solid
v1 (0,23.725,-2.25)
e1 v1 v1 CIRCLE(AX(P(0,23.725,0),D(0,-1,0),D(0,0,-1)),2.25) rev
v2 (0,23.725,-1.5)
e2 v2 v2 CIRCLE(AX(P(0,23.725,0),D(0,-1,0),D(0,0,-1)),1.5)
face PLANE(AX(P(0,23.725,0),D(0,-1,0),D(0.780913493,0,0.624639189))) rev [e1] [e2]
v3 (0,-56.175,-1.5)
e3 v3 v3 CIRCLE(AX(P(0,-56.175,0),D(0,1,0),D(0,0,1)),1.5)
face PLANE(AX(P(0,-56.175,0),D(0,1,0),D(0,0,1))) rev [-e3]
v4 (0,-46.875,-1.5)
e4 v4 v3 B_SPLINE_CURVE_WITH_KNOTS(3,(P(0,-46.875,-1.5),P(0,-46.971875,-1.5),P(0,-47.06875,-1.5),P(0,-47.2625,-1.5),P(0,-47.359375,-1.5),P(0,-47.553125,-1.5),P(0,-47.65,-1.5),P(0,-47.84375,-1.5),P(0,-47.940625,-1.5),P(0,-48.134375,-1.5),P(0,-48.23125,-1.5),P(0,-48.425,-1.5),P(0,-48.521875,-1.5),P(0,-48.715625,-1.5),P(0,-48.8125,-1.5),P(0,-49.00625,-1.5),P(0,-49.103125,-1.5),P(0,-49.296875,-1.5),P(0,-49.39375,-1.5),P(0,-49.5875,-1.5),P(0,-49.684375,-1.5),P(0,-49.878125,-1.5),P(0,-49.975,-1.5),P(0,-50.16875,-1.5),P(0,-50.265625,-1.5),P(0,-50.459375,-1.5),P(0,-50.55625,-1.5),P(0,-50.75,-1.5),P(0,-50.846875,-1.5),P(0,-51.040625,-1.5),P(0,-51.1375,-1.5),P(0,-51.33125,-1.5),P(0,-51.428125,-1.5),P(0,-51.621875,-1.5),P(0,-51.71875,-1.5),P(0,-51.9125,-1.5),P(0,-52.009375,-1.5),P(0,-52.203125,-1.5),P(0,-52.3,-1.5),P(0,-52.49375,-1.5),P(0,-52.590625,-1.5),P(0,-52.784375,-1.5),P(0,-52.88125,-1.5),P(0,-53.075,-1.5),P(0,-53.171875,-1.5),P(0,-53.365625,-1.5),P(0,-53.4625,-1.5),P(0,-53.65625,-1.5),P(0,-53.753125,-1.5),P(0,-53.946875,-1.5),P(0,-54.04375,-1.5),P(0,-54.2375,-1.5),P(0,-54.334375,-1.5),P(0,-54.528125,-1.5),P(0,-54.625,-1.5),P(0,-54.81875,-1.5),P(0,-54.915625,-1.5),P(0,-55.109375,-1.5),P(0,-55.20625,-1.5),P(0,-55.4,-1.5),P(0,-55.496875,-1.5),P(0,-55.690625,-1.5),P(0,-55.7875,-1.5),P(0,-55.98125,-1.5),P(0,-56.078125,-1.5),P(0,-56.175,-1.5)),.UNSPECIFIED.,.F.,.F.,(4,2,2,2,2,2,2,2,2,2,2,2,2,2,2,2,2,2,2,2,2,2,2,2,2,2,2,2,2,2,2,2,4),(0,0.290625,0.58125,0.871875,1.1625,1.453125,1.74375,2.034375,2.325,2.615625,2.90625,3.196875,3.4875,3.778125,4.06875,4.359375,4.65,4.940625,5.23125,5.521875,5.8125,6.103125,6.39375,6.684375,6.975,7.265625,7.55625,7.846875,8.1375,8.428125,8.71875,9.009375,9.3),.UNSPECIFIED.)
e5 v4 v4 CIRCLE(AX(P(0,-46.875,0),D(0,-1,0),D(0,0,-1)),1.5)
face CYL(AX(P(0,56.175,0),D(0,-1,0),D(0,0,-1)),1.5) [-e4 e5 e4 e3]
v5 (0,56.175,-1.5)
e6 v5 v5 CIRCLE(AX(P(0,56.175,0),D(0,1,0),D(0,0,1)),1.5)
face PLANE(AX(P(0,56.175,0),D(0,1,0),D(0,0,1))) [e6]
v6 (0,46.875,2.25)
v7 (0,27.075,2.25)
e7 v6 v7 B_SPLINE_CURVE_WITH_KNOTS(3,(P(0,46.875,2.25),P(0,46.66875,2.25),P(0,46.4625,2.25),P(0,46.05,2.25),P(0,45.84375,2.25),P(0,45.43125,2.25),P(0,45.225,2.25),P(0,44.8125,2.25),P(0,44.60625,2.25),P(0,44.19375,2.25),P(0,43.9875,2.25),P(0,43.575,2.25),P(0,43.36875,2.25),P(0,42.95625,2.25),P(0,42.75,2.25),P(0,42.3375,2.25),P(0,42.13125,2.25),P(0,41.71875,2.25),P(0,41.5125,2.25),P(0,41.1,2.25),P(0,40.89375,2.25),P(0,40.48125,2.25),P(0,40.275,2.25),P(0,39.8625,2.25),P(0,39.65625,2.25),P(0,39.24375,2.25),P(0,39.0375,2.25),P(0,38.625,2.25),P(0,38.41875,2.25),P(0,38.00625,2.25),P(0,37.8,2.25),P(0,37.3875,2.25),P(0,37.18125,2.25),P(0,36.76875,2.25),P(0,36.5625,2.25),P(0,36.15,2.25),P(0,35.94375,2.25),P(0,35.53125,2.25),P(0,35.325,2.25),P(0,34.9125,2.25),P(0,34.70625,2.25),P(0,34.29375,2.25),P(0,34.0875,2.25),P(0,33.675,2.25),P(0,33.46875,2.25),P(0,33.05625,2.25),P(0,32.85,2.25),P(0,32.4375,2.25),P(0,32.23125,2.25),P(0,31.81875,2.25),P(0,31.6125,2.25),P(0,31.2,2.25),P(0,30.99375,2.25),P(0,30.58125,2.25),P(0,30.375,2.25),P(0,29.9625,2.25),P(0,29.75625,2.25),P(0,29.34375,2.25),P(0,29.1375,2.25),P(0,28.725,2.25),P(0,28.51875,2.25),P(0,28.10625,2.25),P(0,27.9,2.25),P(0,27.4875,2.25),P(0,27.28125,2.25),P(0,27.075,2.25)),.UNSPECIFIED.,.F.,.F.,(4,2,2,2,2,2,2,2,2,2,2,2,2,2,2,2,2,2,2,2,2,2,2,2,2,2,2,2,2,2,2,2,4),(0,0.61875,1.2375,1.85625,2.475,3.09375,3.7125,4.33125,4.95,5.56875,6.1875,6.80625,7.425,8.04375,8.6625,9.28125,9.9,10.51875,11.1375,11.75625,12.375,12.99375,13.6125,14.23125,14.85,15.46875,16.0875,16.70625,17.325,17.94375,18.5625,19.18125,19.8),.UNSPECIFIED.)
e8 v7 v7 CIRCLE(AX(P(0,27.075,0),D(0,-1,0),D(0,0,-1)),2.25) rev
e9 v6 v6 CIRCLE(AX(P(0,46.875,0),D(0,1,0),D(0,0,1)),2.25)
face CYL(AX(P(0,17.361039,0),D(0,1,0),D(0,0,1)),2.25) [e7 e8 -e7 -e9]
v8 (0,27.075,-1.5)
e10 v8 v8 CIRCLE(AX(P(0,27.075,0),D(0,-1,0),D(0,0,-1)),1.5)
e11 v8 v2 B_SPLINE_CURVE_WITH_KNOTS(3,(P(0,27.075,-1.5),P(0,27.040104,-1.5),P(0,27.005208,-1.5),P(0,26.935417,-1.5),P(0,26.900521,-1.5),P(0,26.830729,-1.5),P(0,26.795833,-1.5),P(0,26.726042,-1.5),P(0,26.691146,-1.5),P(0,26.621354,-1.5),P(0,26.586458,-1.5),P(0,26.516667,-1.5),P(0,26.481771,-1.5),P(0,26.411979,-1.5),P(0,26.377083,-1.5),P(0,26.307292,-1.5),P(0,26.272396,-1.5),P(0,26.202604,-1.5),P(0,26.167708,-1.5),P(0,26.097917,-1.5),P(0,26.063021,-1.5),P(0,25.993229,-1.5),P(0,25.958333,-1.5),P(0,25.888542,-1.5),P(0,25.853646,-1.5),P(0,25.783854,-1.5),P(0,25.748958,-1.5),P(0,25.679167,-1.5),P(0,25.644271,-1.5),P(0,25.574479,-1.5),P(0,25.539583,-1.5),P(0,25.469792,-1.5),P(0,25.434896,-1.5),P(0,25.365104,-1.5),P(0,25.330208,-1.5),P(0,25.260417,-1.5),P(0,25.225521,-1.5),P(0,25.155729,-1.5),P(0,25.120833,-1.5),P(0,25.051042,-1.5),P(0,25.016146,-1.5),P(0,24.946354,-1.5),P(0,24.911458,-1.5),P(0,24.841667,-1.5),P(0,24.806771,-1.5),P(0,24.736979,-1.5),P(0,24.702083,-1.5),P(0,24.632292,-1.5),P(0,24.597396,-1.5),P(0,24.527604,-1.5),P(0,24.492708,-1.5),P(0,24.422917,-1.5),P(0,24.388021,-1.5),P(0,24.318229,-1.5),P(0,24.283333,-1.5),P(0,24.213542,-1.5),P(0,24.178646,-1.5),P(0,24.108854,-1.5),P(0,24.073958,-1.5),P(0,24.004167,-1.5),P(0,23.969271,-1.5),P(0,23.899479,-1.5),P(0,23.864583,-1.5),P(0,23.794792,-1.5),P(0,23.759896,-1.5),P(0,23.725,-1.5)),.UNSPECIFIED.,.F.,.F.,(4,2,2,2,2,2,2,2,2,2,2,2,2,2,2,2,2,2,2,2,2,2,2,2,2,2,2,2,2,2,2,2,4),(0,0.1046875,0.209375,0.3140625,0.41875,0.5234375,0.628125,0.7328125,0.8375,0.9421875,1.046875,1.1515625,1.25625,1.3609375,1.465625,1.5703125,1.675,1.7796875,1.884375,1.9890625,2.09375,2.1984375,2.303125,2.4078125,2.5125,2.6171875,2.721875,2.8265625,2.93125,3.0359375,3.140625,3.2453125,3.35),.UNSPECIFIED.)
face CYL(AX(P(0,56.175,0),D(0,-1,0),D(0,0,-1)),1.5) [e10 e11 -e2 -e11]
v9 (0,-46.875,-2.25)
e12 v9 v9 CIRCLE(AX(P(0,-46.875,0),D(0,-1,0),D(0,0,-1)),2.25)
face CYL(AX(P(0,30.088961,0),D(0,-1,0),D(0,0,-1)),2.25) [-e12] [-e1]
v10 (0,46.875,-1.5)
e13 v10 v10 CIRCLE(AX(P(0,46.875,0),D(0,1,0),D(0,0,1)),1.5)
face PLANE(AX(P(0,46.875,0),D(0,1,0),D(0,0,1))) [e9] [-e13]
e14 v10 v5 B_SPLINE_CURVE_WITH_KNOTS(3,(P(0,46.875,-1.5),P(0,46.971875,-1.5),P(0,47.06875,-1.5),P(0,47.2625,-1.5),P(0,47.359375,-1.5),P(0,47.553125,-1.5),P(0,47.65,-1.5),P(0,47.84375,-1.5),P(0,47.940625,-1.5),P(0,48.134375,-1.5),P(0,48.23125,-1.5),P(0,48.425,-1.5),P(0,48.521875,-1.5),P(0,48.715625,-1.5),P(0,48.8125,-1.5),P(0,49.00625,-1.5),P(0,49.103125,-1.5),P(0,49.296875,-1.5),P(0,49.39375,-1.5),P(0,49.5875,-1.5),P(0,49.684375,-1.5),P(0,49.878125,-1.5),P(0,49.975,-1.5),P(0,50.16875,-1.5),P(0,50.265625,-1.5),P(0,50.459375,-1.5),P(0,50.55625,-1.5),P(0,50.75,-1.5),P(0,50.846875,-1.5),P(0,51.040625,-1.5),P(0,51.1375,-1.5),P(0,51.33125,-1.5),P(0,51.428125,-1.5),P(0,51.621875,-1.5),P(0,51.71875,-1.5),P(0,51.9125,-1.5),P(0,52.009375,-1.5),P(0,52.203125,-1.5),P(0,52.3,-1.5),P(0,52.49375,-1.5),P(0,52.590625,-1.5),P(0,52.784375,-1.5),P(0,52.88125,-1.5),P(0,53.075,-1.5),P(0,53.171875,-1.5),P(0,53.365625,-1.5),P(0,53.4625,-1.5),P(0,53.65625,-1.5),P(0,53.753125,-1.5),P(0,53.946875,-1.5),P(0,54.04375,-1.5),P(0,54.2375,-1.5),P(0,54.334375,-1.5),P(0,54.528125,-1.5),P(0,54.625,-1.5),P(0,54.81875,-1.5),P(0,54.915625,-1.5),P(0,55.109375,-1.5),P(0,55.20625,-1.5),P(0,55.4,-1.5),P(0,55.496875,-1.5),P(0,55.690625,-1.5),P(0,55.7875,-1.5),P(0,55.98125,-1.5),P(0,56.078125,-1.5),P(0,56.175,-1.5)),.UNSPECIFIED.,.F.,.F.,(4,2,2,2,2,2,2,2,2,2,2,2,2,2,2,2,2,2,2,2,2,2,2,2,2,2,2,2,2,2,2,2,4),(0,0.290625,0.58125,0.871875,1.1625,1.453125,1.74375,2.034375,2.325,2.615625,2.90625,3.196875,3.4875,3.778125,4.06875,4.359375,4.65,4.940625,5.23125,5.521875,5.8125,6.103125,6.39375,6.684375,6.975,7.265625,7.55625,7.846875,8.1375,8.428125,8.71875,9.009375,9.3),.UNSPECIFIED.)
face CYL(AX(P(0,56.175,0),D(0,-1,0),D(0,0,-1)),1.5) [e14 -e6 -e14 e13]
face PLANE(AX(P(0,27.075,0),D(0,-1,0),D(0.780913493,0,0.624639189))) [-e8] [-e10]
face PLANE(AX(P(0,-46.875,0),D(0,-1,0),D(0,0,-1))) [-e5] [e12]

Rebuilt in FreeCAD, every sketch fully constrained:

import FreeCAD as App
import Part
import Sketcher
from FreeCAD import Vector
Q = App.Units.Quantity

doc = App.newDocument("Part")
body = doc.addObject("PartDesign::Body", "Body")

sketch1 = body.newObject("Sketcher::SketchObject", "Sketch")
sketch1.AttachmentSupport = (doc.getObject("XZ_Plane"), [""])
sketch1.MapMode = "FlatFace"
sketch1.addGeometry(Part.Circle(Vector(0, 0, 0), Vector(0, 0, 1), 1.5), False)
sketch1.addConstraint(Sketcher.Constraint("Coincident", 0, 3, -1, 1))
sketch1.addConstraint(Sketcher.Constraint("Diameter", 0, Q("3 mm")))
pad1 = body.newObject("PartDesign::Pad", "Pad")
pad1.Profile = sketch1
pad1.Length = 112.35
pad1.Midplane = True

sketch2 = body.newObject("Sketcher::SketchObject", "Sketch001")
sketch2.AttachmentSupport = (doc.getObject("XZ_Plane"), [""])
sketch2.MapMode = "FlatFace"
sketch2.AttachmentOffset = App.Placement(Vector(0, 0, 46.875), App.Rotation())
sketch2.addGeometry(Part.Circle(Vector(0, 0, 0), Vector(0, 0, 1), 2.25), False)
sketch2.addConstraint(Sketcher.Constraint("Coincident", 0, 3, -1, 1))
sketch2.addConstraint(Sketcher.Constraint("Diameter", 0, Q("4.5 mm")))
pad2 = body.newObject("PartDesign::Pad", "Pad001")
pad2.Profile = sketch2
pad2.Length = 70.6
pad2.Reversed = True

sketch3 = body.newObject("Sketcher::SketchObject", "Sketch002")
sketch3.AttachmentSupport = (doc.getObject("XZ_Plane"), [""])
sketch3.MapMode = "FlatFace"
sketch3.AttachmentOffset = App.Placement(Vector(0, 0, -27.075), App.Rotation())
sketch3.addGeometry(Part.Circle(Vector(0, 0, 0), Vector(0, 0, 1), 2.25), False)
sketch3.addConstraint(Sketcher.Constraint("Coincident", 0, 3, -1, 1))
sketch3.addConstraint(Sketcher.Constraint("Diameter", 0, Q("4.5 mm")))
pad3 = body.newObject("PartDesign::Pad", "Pad002")
pad3.Profile = sketch3
pad3.Length = 19.8
pad3.Reversed = True

doc.recompute()
